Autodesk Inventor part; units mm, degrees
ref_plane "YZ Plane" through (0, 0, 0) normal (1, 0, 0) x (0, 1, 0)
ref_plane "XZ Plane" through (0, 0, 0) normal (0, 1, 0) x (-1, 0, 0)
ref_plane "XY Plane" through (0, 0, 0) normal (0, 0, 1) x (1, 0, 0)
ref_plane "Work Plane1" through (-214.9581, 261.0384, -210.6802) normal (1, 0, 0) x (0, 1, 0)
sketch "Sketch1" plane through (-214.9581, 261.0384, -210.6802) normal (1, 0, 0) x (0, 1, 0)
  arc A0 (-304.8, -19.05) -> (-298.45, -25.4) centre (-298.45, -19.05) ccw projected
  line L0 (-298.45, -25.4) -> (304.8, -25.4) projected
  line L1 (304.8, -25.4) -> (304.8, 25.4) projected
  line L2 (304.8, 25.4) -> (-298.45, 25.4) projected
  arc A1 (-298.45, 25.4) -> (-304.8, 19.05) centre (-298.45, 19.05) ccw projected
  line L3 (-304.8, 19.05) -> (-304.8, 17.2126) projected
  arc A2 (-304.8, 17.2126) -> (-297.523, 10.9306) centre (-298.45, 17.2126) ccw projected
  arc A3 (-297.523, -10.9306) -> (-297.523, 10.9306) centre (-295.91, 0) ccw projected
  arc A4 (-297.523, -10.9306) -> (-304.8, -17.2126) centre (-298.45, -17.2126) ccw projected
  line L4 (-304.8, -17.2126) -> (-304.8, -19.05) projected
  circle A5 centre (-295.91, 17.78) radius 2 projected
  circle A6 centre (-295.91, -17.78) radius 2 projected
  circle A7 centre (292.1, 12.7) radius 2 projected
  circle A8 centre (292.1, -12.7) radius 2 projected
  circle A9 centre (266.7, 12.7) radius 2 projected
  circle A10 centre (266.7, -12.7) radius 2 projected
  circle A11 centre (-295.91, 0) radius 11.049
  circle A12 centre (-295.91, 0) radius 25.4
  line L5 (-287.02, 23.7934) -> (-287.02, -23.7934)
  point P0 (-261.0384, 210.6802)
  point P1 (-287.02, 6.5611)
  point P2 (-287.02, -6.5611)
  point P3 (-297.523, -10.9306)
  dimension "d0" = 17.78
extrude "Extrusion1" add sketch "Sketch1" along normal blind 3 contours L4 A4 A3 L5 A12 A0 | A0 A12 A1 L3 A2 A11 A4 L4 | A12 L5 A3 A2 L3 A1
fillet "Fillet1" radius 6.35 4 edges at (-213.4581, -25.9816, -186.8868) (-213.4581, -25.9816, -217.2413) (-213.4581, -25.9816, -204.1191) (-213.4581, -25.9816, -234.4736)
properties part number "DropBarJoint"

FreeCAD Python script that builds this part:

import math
import FreeCAD as App
import Part
import Sketcher
Q = App.Units.Quantity


def edges_at(feature, points):
    """Names of the edges that pass closest to the given points."""
    edges = feature.Shape.Edges
    near = lambda p: min(range(len(edges)), key=lambda i: edges[i].distToShape(Part.Vertex(*p))[0])
    return sorted({f"Edge{near(p) + 1}" for p in points})

doc = App.newDocument("Part")
body = doc.addObject("PartDesign::Body", "Body")

# Sketch on YZ plane
sketch1 = doc.addObject("Sketcher::SketchObject", "Sketch")
body.addObject(sketch1)
sketch1.AttachmentSupport = (doc.YZ_Plane, [""])
sketch1.MapMode = "FlatFace"
sketch1.AttachmentOffset = App.Placement(App.Vector(0, 0, -214.9581), App.Rotation())
sketch1.addGeometry([
    Part.ArcOfCircle(Part.Circle(App.Vector(-34.8716, -210.6802, 0), App.Vector(0, 0, 1), 11.048972), math.radians(36.428481), math.radians(323.571519)),  # 0
    Part.LineSegment(App.Vector(-25.9816, -204.119103, 0), App.Vector(-25.9816, -186.8868, 0)),  # 1
    Part.ArcOfCircle(Part.Circle(App.Vector(-34.8716, -210.6802, 0), App.Vector(0, 0, 1), 25.4), math.radians(69.512651), math.radians(290.487349)),  # 2
    Part.LineSegment(App.Vector(-25.9816, -234.4736, 0), App.Vector(-25.9816, -217.241297, 0)),  # 3
    Part.Circle(App.Vector(-34.8716, -228.4602, 0), App.Vector(0, 0, 1), 2),  # 4
    Part.Circle(App.Vector(-34.8716, -192.9002, 0), App.Vector(0, 0, 1), 2),  # 5
], False)
sketch1.addConstraint([
    Sketcher.Constraint("Coincident", 0, 1, 1, 1),
    Sketcher.Constraint("Coincident", 1, 2, 2, 1),
    Sketcher.Constraint("Coincident", 2, 2, 3, 1),
    Sketcher.Constraint("Coincident", 3, 2, 0, 2),
    Sketcher.Constraint("Vertical", 1),
    Sketcher.Constraint("Vertical", 3),
    Sketcher.Constraint("Coincident", 2, 3, 0, 3),
    Sketcher.Constraint("Equal", 4, 5),
    Sketcher.Constraint("Vertical", 2, 3, 4, 3),
    Sketcher.Constraint("Vertical", 4, 3, 5, 3),
    Sketcher.Constraint("Vertical", 1, 2, 2, 2),
    Sketcher.Constraint("Radius", 2, Q("1 in")),
    Sketcher.Constraint("DistanceY", 4, 3, 0, 3, Q("0.7 in")),
    Sketcher.Constraint("DistanceY", 0, 3, 5, 3, Q("0.7 in")),
    Sketcher.Constraint("Radius", 0, Q("0.435 in")),
    Sketcher.Constraint("Diameter", 4, Q("4 mm")),
    Sketcher.Constraint("DistanceX", 0, 3, 0, 1, Q("0.35 in")),
    Sketcher.Constraint("DistanceX", 0, 3, -1, 1, Q("1.3729 in")),
    Sketcher.Constraint("DistanceY", 0, 3, -1, 1, Q("8.2945 in")),
])
pad1 = doc.addObject("PartDesign::Pad", "Pad")
body.addObject(pad1)
pad1.Profile = sketch1
pad1.Length = Q("0.1181102 in")
doc.recompute()

fillet = doc.addObject("PartDesign::Fillet", "Fillet")
body.addObject(fillet)
fillet.Base = (pad1, edges_at(pad1, [
    (-213.458, -25.982, -186.887),
    (-213.458, -25.982, -217.241),
    (-213.458, -25.982, -204.119),
    (-213.458, -25.982, -234.474),
]))
fillet.Radius = Q("0.25 in")

doc.recompute()
